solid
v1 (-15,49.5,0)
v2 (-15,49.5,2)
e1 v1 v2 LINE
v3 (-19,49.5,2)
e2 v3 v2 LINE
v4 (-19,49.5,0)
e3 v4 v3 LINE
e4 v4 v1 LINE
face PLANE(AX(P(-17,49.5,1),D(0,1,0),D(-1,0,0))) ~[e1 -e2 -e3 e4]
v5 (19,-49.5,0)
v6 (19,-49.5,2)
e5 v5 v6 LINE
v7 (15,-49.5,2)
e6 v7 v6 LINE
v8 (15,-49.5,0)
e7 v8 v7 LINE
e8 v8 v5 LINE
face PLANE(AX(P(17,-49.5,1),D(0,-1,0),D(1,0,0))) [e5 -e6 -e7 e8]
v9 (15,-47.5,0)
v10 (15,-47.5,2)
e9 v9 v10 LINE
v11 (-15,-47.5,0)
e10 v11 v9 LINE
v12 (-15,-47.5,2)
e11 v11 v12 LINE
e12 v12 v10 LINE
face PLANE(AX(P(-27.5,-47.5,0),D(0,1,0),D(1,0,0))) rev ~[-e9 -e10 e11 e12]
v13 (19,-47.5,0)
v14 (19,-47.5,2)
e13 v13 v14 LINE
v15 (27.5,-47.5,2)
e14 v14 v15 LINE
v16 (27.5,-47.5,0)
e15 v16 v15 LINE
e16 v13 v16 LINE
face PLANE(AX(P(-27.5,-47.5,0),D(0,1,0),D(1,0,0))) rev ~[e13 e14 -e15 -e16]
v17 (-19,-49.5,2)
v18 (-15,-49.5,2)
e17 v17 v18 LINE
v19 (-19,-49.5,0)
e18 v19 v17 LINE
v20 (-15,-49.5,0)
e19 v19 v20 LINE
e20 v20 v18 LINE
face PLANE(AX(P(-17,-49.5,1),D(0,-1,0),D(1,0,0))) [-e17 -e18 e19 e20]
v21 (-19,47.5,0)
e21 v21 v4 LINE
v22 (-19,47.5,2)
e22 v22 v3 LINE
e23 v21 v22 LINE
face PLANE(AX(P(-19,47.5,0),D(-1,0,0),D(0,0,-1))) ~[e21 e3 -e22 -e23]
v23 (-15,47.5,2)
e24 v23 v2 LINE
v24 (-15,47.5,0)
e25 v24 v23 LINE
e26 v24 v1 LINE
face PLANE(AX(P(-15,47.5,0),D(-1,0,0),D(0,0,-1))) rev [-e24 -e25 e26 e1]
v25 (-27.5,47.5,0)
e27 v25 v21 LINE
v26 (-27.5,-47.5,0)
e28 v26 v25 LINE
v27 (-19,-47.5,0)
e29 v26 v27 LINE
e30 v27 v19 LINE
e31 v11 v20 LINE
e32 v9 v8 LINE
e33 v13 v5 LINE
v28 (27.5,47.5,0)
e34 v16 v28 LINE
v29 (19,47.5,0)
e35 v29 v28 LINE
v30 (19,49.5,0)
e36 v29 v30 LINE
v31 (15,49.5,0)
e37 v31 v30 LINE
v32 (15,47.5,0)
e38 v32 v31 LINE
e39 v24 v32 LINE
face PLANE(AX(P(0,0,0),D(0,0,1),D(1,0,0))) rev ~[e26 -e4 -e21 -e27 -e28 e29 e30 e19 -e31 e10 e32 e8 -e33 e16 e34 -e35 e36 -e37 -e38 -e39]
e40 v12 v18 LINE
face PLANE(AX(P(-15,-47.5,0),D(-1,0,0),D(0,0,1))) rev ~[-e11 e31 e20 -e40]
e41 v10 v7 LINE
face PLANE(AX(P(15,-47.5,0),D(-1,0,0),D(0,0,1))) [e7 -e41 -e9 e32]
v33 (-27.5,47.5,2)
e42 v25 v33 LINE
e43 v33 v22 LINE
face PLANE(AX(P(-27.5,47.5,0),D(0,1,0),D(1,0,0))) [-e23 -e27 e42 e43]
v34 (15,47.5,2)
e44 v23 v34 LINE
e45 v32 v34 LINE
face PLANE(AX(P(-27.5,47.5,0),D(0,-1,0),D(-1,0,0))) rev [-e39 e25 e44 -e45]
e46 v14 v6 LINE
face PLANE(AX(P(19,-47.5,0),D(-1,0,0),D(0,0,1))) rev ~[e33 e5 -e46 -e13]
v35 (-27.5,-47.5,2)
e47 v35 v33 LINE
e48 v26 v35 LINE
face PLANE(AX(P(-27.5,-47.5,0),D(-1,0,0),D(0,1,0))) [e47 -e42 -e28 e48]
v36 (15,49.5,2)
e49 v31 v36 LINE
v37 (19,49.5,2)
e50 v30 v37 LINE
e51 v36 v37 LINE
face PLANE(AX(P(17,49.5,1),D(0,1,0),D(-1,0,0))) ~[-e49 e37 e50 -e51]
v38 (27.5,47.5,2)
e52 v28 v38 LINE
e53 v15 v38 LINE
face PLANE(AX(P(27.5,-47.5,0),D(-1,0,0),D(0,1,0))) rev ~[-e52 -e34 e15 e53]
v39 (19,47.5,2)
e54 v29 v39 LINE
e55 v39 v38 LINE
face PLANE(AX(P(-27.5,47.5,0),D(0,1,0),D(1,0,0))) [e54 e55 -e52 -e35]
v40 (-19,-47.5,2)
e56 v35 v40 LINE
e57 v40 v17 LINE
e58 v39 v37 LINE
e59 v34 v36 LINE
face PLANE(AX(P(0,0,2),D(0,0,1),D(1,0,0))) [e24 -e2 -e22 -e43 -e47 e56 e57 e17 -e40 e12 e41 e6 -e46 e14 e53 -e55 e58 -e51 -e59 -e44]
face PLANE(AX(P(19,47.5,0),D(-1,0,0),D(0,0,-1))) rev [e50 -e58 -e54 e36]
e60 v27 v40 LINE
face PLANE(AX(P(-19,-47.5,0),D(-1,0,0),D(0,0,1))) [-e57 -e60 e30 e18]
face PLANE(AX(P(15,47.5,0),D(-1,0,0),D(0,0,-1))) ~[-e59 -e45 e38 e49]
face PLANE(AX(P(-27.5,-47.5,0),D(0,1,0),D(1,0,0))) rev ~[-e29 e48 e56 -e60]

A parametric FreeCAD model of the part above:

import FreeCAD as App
import Part
import Sketcher
from FreeCAD import Vector
Q = App.Units.Quantity

doc = App.newDocument("Part")
params = doc.addObject("Spreadsheet::Sheet", "Params")
for row, (alias, value) in enumerate([
    ("sketch1_width", "55 mm"),
    ("sketch1_height", "95 mm"),
    ("pad1_length", "2 mm"),
    ("sketch2_width", "4 mm"),
    ("sketch2_height", "2 mm"),
    ("pad2_length", "2 mm"),
], start=1):
    params.set(f"A{row}", alias)
    params.set(f"B{row}", "=" + value)
    params.setAlias(f"B{row}", alias)

body = doc.addObject("PartDesign::Body", "Body")

# Sketch on XY plane
sketch1 = body.newObject("Sketcher::SketchObject", "Sketch")
sketch1.AttachmentSupport = (doc.getObject("XY_Plane"), [""])
sketch1.MapMode = "FlatFace"
sketch1.addGeometry(Part.LineSegment(Vector(-28, 48, 0), Vector(-28, -48, 0)), False)
sketch1.addGeometry(Part.LineSegment(Vector(-28, -48, 0), Vector(28, -48, 0)), False)
sketch1.addGeometry(Part.LineSegment(Vector(28, -48, 0), Vector(28, 48, 0)), False)
sketch1.addGeometry(Part.LineSegment(Vector(28, 48, 0), Vector(-28, 48, 0)), False)
sketch1.addConstraint(Sketcher.Constraint("Coincident", 0, 2, 1, 1))
sketch1.addConstraint(Sketcher.Constraint("Coincident", 1, 2, 2, 1))
sketch1.addConstraint(Sketcher.Constraint("Coincident", 2, 2, 3, 1))
sketch1.addConstraint(Sketcher.Constraint("Coincident", 3, 2, 0, 1))
sketch1.addConstraint(Sketcher.Constraint("Vertical", 0))
sketch1.addConstraint(Sketcher.Constraint("Horizontal", 1))
sketch1.addConstraint(Sketcher.Constraint("Vertical", 2))
sketch1.addConstraint(Sketcher.Constraint("Horizontal", 3))
sketch1.addConstraint(Sketcher.Constraint("Symmetric", 0, 2, 2, 2, -1, 1))
sketch1.addConstraint(Sketcher.Constraint("DistanceX", 1, 1, 1, 2, Q("55 mm")))
sketch1.addConstraint(Sketcher.Constraint("DistanceY", 0, 2, 0, 1, Q("95 mm")))
sketch1.setExpression("Constraints[9]", "Params.sketch1_width")
sketch1.setExpression("Constraints[10]", "Params.sketch1_height")
pad1 = body.newObject("PartDesign::Pad", "Pad")
pad1.Profile = sketch1
pad1.setExpression("Length", "Params.pad1_length")

# Sketch on XZ plane
sketch2 = body.newObject("Sketcher::SketchObject", "Sketch001")
sketch2.AttachmentSupport = (doc.getObject("XZ_Plane"), [""])
sketch2.MapMode = "FlatFace"
sketch2.AttachmentOffset = App.Placement(Vector(0, 0, 47.5), App.Rotation())
sketch2.addGeometry(Part.LineSegment(Vector(15, 2, 0), Vector(15, 0, 0)), False)
sketch2.addGeometry(Part.LineSegment(Vector(15, 0, 0), Vector(19, 0, 0)), False)
sketch2.addGeometry(Part.LineSegment(Vector(19, 0, 0), Vector(19, 2, 0)), False)
sketch2.addGeometry(Part.LineSegment(Vector(19, 2, 0), Vector(15, 2, 0)), False)
sketch2.addGeometry(Part.LineSegment(Vector(-19, 2, 0), Vector(-19, 0, 0)), False)
sketch2.addGeometry(Part.LineSegment(Vector(-19, 0, 0), Vector(-15, 0, 0)), False)
sketch2.addGeometry(Part.LineSegment(Vector(-15, 0, 0), Vector(-15, 2, 0)), False)
sketch2.addGeometry(Part.LineSegment(Vector(-15, 2, 0), Vector(-19, 2, 0)), False)
sketch2.addConstraint(Sketcher.Constraint("Coincident", 0, 2, 1, 1))
sketch2.addConstraint(Sketcher.Constraint("Coincident", 1, 2, 2, 1))
sketch2.addConstraint(Sketcher.Constraint("Coincident", 2, 2, 3, 1))
sketch2.addConstraint(Sketcher.Constraint("Coincident", 3, 2, 0, 1))
sketch2.addConstraint(Sketcher.Constraint("Coincident", 4, 2, 5, 1))
sketch2.addConstraint(Sketcher.Constraint("Coincident", 5, 2, 6, 1))
sketch2.addConstraint(Sketcher.Constraint("Coincident", 6, 2, 7, 1))
sketch2.addConstraint(Sketcher.Constraint("Coincident", 7, 2, 4, 1))
sketch2.addConstraint(Sketcher.Constraint("Vertical", 0))
sketch2.addConstraint(Sketcher.Constraint("Horizontal", 1))
sketch2.addConstraint(Sketcher.Constraint("Vertical", 2))
sketch2.addConstraint(Sketcher.Constraint("Horizontal", 3))
sketch2.addConstraint(Sketcher.Constraint("Vertical", 4))
sketch2.addConstraint(Sketcher.Constraint("Horizontal", 5))
sketch2.addConstraint(Sketcher.Constraint("Vertical", 6))
sketch2.addConstraint(Sketcher.Constraint("Horizontal", 7))
sketch2.addConstraint(Sketcher.Constraint("Symmetric", 1, 2, 4, 2, -1, 1))
sketch2.addConstraint(Sketcher.Constraint("Symmetric", 0, 2, 5, 2, -2))
sketch2.addConstraint(Sketcher.Constraint("Horizontal", 3, 2, 6, 2))
sketch2.addConstraint(Sketcher.Constraint("DistanceX", 1, 1, 1, 2, Q("4 mm")))
sketch2.addConstraint(Sketcher.Constraint("DistanceY", 0, 2, 0, 1, Q("2 mm")))
sketch2.addConstraint(Sketcher.Constraint("DistanceX", -1, 1, 0, 2, Q("15 mm")))
sketch2.setExpression("Constraints[19]", "Params.sketch2_width")
sketch2.setExpression("Constraints[20]", "Params.sketch2_height")
pad2 = body.newObject("PartDesign::Pad", "Pad001")
pad2.Profile = sketch2
pad2.setExpression("Length", "Params.pad2_length")
body2 = doc.addObject("PartDesign::Body", "Body001")
doc.recompute()

body2.BaseFeature = body
doc.recompute()

mirroring = doc.addObject("Part::Mirroring", "Mirroring")
mirroring.Source = body
mirroring.Base = Vector(0, 0, 0)
mirroring.Normal = Vector(0, -1, 0)
body3 = doc.addObject("PartDesign::Body", "Body002")
body3.BaseFeature = mirroring
boolean = body2.newObject("PartDesign::Boolean", "Boolean")
boolean.Type = "Fuse"
boolean.addObjects([body3])
doc.recompute()
mirroring.Visibility = False

doc.recompute()
